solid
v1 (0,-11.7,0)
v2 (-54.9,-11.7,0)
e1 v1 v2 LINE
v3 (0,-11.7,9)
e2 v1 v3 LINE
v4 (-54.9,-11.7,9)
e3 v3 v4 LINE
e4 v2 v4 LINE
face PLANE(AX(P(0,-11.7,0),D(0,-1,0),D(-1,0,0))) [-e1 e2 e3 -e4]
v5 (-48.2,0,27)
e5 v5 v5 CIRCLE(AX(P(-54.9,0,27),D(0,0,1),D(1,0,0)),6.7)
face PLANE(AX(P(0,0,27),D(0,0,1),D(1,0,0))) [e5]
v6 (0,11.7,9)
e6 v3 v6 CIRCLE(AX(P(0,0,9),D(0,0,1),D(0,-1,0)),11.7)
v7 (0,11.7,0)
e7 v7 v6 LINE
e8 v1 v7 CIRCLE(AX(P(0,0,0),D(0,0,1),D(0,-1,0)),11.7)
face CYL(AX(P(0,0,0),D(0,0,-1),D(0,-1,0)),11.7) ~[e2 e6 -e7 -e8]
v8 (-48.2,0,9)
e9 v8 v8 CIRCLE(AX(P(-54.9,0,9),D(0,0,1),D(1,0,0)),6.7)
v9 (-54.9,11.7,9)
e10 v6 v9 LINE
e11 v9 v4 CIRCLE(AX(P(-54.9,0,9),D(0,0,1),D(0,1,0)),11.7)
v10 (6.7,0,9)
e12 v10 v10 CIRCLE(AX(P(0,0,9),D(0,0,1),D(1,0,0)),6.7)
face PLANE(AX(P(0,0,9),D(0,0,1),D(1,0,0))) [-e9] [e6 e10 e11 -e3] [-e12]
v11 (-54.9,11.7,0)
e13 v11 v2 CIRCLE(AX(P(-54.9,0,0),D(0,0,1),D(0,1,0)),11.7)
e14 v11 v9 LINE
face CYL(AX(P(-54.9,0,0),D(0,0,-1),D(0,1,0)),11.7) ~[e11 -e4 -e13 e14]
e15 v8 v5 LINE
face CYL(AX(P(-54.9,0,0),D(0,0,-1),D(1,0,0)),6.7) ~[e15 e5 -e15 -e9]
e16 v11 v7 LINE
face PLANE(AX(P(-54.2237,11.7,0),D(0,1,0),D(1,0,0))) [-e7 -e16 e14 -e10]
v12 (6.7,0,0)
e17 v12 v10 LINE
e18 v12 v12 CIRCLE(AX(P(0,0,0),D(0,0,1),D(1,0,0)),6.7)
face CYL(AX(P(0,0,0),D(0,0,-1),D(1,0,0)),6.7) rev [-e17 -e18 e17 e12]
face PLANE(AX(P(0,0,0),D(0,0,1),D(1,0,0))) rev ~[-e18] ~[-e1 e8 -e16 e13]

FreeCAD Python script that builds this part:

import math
import FreeCAD as App
import Part
import Sketcher

V = App.Vector

doc = App.newDocument("Part")
body = doc.addObject("PartDesign::Body", "Body")

# Sketch on XY plane
sketch1 = body.newObject("Sketcher::SketchObject", "Sketch")
sketch1.AttachmentSupport = (doc.getObject("XY_Plane"), [""])
sketch1.MapMode = "FlatFace"
sketch1.addGeometry([
    Part.LineSegment(V(-55, -12, 0), V(0, -12, 0)),  # 0
    Part.ArcOfCircle(Part.Circle(V(0, 0, 0), V(0, 0, 1), 12), math.radians(-90), math.radians(90)),  # 1
    Part.LineSegment(V(0, 12, 0), V(-55, 12, 0)),  # 2
    Part.ArcOfCircle(Part.Circle(V(-55, 0, 0), V(0, 0, 1), 12), math.radians(90), math.radians(270)),  # 3
    Part.Circle(V(-55, 0, 0), V(0, 0, 1), 7),  # 4
    Part.Circle(V(0, 0, 0), V(0, 0, 1), 7),  # 5
], False)
sketch1.addConstraint([
    Sketcher.Constraint("Tangent", 0, 2, 1, 1),
    Sketcher.Constraint("Tangent", 1, 2, 2, 1),
    Sketcher.Constraint("Tangent", 2, 2, 3, 1),
    Sketcher.Constraint("Tangent", 3, 2, 0, 1),
    Sketcher.Constraint("Horizontal", 0),
    Sketcher.Constraint("Horizontal", 2),
    Sketcher.Constraint("Coincident", 1, 3, -1, 1),
    Sketcher.Constraint("Coincident", 5, 3, -1, 1),
    Sketcher.Constraint("Coincident", 4, 3, 3, 3),
    Sketcher.Constraint("Equal", 4, 5),
    Sketcher.Constraint("Diameter", 4, 13.4),
    Sketcher.Constraint("DistanceX", 0, 1, 0, 2, 54.9),
    Sketcher.Constraint("Radius", 1, 11.7),
])
pad1 = body.newObject("PartDesign::Pad", "Pad")
pad1.Profile = sketch1
pad1.Length = 9

# Sketch on XY plane
sketch2 = body.newObject("Sketcher::SketchObject", "Sketch001")
sketch2.AttachmentSupport = (doc.getObject("XY_Plane"), [""])
sketch2.MapMode = "FlatFace"
sketch2.addGeometry(Part.Circle(V(-55, 0, 0), V(0, 0, 1), 7), False)
sketch2.addConstraint([
    Sketcher.Constraint("PointOnObject", 0, 3, -1),
    Sketcher.Constraint("Diameter", 0, 13.4),
    Sketcher.Constraint("DistanceX", 0, 3, -1, 1, 54.9),
])
pad2 = body.newObject("PartDesign::Pad", "Pad001")
pad2.Profile = sketch2
pad2.Length = 27

doc.recompute()
